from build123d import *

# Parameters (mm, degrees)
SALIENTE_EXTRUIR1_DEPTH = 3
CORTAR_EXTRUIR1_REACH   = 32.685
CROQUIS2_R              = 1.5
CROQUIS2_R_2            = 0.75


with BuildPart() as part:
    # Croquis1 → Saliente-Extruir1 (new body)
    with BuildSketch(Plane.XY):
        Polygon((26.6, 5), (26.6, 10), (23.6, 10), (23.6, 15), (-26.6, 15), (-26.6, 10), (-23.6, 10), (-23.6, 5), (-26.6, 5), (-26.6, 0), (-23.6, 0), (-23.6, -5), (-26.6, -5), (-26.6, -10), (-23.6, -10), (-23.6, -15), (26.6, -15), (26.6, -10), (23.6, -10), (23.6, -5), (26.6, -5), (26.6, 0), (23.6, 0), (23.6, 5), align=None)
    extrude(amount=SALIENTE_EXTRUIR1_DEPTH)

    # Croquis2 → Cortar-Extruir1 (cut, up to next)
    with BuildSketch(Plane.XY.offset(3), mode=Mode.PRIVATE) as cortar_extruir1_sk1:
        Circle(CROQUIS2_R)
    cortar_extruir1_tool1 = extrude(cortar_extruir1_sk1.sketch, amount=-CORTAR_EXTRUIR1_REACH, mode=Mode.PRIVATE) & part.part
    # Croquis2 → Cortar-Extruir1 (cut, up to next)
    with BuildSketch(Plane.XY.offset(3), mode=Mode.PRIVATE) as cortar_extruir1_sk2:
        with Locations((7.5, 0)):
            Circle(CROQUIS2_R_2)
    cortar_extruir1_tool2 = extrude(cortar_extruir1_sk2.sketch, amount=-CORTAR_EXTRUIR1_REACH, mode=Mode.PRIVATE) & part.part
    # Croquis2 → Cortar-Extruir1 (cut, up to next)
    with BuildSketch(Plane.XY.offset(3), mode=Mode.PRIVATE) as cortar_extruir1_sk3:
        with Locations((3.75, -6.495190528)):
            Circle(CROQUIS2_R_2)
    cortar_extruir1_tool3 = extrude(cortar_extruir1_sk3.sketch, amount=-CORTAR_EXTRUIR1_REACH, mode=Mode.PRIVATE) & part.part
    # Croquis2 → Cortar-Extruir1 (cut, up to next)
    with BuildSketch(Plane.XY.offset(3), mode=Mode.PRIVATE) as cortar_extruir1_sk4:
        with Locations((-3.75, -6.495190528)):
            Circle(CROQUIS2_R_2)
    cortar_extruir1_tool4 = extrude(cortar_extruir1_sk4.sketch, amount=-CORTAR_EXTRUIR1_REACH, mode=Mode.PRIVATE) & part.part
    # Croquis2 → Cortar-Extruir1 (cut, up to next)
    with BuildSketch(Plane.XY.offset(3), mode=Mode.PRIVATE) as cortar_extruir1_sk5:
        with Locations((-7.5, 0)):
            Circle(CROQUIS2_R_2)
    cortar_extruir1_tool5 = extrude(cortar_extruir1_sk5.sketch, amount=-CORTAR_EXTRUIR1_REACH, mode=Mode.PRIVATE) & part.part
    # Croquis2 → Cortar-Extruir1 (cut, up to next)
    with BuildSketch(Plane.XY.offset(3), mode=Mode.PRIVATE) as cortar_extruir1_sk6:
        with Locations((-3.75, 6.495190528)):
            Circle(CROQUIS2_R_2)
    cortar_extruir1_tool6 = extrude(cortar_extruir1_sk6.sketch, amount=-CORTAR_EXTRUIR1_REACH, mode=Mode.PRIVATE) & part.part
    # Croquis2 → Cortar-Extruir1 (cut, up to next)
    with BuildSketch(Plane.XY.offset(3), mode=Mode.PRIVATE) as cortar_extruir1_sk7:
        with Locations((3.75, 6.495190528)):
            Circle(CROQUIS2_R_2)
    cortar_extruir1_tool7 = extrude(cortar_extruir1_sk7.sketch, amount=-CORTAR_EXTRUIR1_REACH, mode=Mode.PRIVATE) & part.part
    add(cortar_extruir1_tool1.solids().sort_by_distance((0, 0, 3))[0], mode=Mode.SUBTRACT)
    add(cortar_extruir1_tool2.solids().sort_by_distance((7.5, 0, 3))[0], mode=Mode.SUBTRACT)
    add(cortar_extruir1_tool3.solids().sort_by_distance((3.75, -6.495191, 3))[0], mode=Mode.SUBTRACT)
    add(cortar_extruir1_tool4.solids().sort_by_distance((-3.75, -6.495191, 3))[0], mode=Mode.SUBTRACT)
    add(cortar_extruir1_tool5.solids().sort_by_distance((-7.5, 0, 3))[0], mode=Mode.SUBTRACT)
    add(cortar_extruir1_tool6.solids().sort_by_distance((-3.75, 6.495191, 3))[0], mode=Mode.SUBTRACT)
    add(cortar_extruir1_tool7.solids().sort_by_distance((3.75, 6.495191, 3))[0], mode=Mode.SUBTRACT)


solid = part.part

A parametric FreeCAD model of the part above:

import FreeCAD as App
import Part
import Sketcher

V = App.Vector

doc = App.newDocument("Part")
body = doc.addObject("PartDesign::Body", "Body")

# Sketch on XY plane
sketch1 = body.newObject("Sketcher::SketchObject", "Sketch")
sketch1.AttachmentSupport = (doc.getObject("XY_Plane"), [""])
sketch1.MapMode = "FlatFace"
sketch1.addGeometry([
    Part.LineSegment(V(26.6, 5, 0), V(26.6, 10, 0)),  # 0
    Part.LineSegment(V(26.6, 10, 0), V(23.6, 10, 0)),  # 1
    Part.LineSegment(V(23.6, 10, 0), V(23.6, 15, 0)),  # 2
    Part.LineSegment(V(23.6, 15, 0), V(-26.6, 15, 0)),  # 3
    Part.LineSegment(V(-26.6, 15, 0), V(-26.6, 10, 0)),  # 4
    Part.LineSegment(V(-26.6, 10, 0), V(-23.6, 10, 0)),  # 5
    Part.LineSegment(V(-23.6, 10, 0), V(-23.6, 5, 0)),  # 6
    Part.LineSegment(V(-23.6, 5, 0), V(-26.6, 5, 0)),  # 7
    Part.LineSegment(V(-26.6, 5, 0), V(-26.6, 0, 0)),  # 8
    Part.LineSegment(V(-26.6, 0, 0), V(-23.6, 0, 0)),  # 9
    Part.LineSegment(V(-23.6, 0, 0), V(-23.6, -5, 0)),  # 10
    Part.LineSegment(V(-23.6, -5, 0), V(-26.6, -5, 0)),  # 11
    Part.LineSegment(V(-26.6, -5, 0), V(-26.6, -10, 0)),  # 12
    Part.LineSegment(V(-26.6, -10, 0), V(-23.6, -10, 0)),  # 13
    Part.LineSegment(V(-23.6, -10, 0), V(-23.6, -15, 0)),  # 14
    Part.LineSegment(V(-23.6, -15, 0), V(26.6, -15, 0)),  # 15
    Part.LineSegment(V(26.6, -15, 0), V(26.6, -10, 0)),  # 16
    Part.LineSegment(V(26.6, -10, 0), V(23.6, -10, 0)),  # 17
    Part.LineSegment(V(23.6, -10, 0), V(23.6, -5, 0)),  # 18
    Part.LineSegment(V(23.6, -5, 0), V(26.6, -5, 0)),  # 19
    Part.LineSegment(V(26.6, -5, 0), V(26.6, 0, 0)),  # 20
    Part.LineSegment(V(26.6, 0, 0), V(23.6, 0, 0)),  # 21
    Part.LineSegment(V(23.6, 0, 0), V(23.6, 5, 0)),  # 22
    Part.LineSegment(V(23.6, 5, 0), V(26.6, 5, 0)),  # 23
], False)
sketch1.addConstraint([
    Sketcher.Constraint("Coincident", 0, 2, 1, 1),
    Sketcher.Constraint("Coincident", 1, 2, 2, 1),
    Sketcher.Constraint("Coincident", 2, 2, 3, 1),
    Sketcher.Constraint("Coincident", 3, 2, 4, 1),
    Sketcher.Constraint("Coincident", 4, 2, 5, 1),
    Sketcher.Constraint("Coincident", 5, 2, 6, 1),
    Sketcher.Constraint("Coincident", 6, 2, 7, 1),
    Sketcher.Constraint("Coincident", 7, 2, 8, 1),
    Sketcher.Constraint("Coincident", 8, 2, 9, 1),
    Sketcher.Constraint("Coincident", 9, 2, 10, 1),
    Sketcher.Constraint("Coincident", 10, 2, 11, 1),
    Sketcher.Constraint("Coincident", 11, 2, 12, 1),
    Sketcher.Constraint("Coincident", 12, 2, 13, 1),
    Sketcher.Constraint("Coincident", 13, 2, 14, 1),
    Sketcher.Constraint("Coincident", 14, 2, 15, 1),
    Sketcher.Constraint("Coincident", 15, 2, 16, 1),
    Sketcher.Constraint("Coincident", 16, 2, 17, 1),
    Sketcher.Constraint("Coincident", 17, 2, 18, 1),
    Sketcher.Constraint("Coincident", 18, 2, 19, 1),
    Sketcher.Constraint("Coincident", 19, 2, 20, 1),
    Sketcher.Constraint("Coincident", 20, 2, 21, 1),
    Sketcher.Constraint("Coincident", 21, 2, 22, 1),
    Sketcher.Constraint("Coincident", 22, 2, 23, 1),
    Sketcher.Constraint("Coincident", 23, 2, 0, 1),
    Sketcher.Constraint("Vertical", 0),
    Sketcher.Constraint("Horizontal", 1),
    Sketcher.Constraint("Vertical", 2),
    Sketcher.Constraint("Horizontal", 3),
    Sketcher.Constraint("Vertical", 4),
    Sketcher.Constraint("Horizontal", 5),
    Sketcher.Constraint("Vertical", 6),
    Sketcher.Constraint("Horizontal", 7),
    Sketcher.Constraint("Vertical", 8),
    Sketcher.Constraint("Horizontal", 9),
    Sketcher.Constraint("Vertical", 10),
    Sketcher.Constraint("Horizontal", 11),
    Sketcher.Constraint("Vertical", 12),
    Sketcher.Constraint("Horizontal", 13),
    Sketcher.Constraint("Vertical", 14),
    Sketcher.Constraint("Horizontal", 15),
    Sketcher.Constraint("Vertical", 16),
    Sketcher.Constraint("Horizontal", 17),
    Sketcher.Constraint("Vertical", 18),
    Sketcher.Constraint("Horizontal", 19),
    Sketcher.Constraint("Vertical", 20),
    Sketcher.Constraint("Horizontal", 21),
    Sketcher.Constraint("Vertical", 22),
    Sketcher.Constraint("Horizontal", 23),
    Sketcher.Constraint("Symmetric", 0, 2, 12, 2, -1, 1),
    Sketcher.Constraint("Symmetric", 2, 2, 14, 2, -1, 1),
    Sketcher.Constraint("Symmetric", 4, 2, 16, 2, -1, 1),
    Sketcher.Constraint("Symmetric", 6, 2, 18, 2, -1, 1),
    Sketcher.Constraint("Symmetric", 8, 2, 20, 2, -1, 1),
    Sketcher.Constraint("Symmetric", 10, 2, 22, 2, -1, 1),
    Sketcher.Constraint("Symmetric", 0, 2, 4, 2, -2),
    Sketcher.Constraint("Symmetric", 10, 2, 18, 2, -2),
    Sketcher.Constraint("PointOnObject", 8, 2, -1),
    Sketcher.Constraint("Vertical", 4, 2, 7, 2),
    Sketcher.Constraint("Vertical", 10, 2, 13, 2),
    Sketcher.Constraint("Equal", 0, 2),
    Sketcher.Constraint("Equal", 6, 8),
    Sketcher.Constraint("DistanceX", 1, 2, 1, 1, 3.0),
    Sketcher.Constraint("DistanceY", 0, 1, 0, 2, 5.0),
    Sketcher.Constraint("DistanceX", 3, 2, 3, 1, 50.2),
])
pad1 = body.newObject("PartDesign::Pad", "Pad")
pad1.Profile = sketch1
pad1.Length = 3

# Sketch on XY plane
sketch2 = body.newObject("Sketcher::SketchObject", "Sketch001")
sketch2.AttachmentSupport = (doc.getObject("XY_Plane"), [""])
sketch2.MapMode = "FlatFace"
sketch2.AttachmentOffset = App.Placement(V(0, 0, 3), App.Rotation())
sketch2.addGeometry(Part.Circle(V(0, 0, 0), V(0, 0, 1), 1.5), False)
sketch2.addConstraint([
    Sketcher.Constraint("Coincident", 0, 3, -1, 1),
    Sketcher.Constraint("Diameter", 0, 3.0),
])
pocket1 = body.newObject("PartDesign::Pocket", "Pocket")
pocket1.Profile = sketch2
pocket1.Type = "UpToFirst"

# Sketch on XY plane
sketch3 = body.newObject("Sketcher::SketchObject", "Sketch002")
sketch3.AttachmentSupport = (doc.getObject("XY_Plane"), [""])
sketch3.MapMode = "FlatFace"
sketch3.AttachmentOffset = App.Placement(V(0, 0, 3), App.Rotation())
sketch3.addGeometry(Part.Circle(V(7.5, 0, 0), V(0, 0, 1), 0.75), False)
sketch3.addConstraint([
    Sketcher.Constraint("PointOnObject", 0, 3, -1),
    Sketcher.Constraint("Diameter", 0, 1.5),
    Sketcher.Constraint("DistanceX", -1, 1, 0, 3, 7.5),
])
pocket2 = body.newObject("PartDesign::Pocket", "Pocket001")
pocket2.Profile = sketch3
pocket2.Type = "UpToFirst"

# Sketch on XY plane
sketch4 = body.newObject("Sketcher::SketchObject", "Sketch003")
sketch4.AttachmentSupport = (doc.getObject("XY_Plane"), [""])
sketch4.MapMode = "FlatFace"
sketch4.AttachmentOffset = App.Placement(V(0, 0, 3), App.Rotation())
sketch4.addGeometry(Part.Circle(V(3.75, -6.495191, 0), V(0, 0, 1), 0.75), False)
sketch4.addConstraint([
    Sketcher.Constraint("Diameter", 0, 1.5),
    Sketcher.Constraint("DistanceX", -1, 1, 0, 3, 3.75),
    Sketcher.Constraint("DistanceY", 0, 3, -1, 1, 6.495191),
])
pocket3 = body.newObject("PartDesign::Pocket", "Pocket002")
pocket3.Profile = sketch4
pocket3.Type = "UpToFirst"

# Sketch on XY plane
sketch5 = body.newObject("Sketcher::SketchObject", "Sketch004")
sketch5.AttachmentSupport = (doc.getObject("XY_Plane"), [""])
sketch5.MapMode = "FlatFace"
sketch5.AttachmentOffset = App.Placement(V(0, 0, 3), App.Rotation())
sketch5.addGeometry(Part.Circle(V(-3.75, -6.495191, 0), V(0, 0, 1), 0.75), False)
sketch5.addConstraint([
    Sketcher.Constraint("Diameter", 0, 1.5),
    Sketcher.Constraint("DistanceX", 0, 3, -1, 1, 3.75),
    Sketcher.Constraint("DistanceY", 0, 3, -1, 1, 6.495191),
])
pocket4 = body.newObject("PartDesign::Pocket", "Pocket003")
pocket4.Profile = sketch5
pocket4.Type = "UpToFirst"

# Sketch on XY plane
sketch6 = body.newObject("Sketcher::SketchObject", "Sketch005")
sketch6.AttachmentSupport = (doc.getObject("XY_Plane"), [""])
sketch6.MapMode = "FlatFace"
sketch6.AttachmentOffset = App.Placement(V(0, 0, 3), App.Rotation())
sketch6.addGeometry(Part.Circle(V(-7.5, 0, 0), V(0, 0, 1), 0.75), False)
sketch6.addConstraint([
    Sketcher.Constraint("PointOnObject", 0, 3, -1),
    Sketcher.Constraint("Diameter", 0, 1.5),
    Sketcher.Constraint("DistanceX", 0, 3, -1, 1, 7.5),
])
pocket5 = body.newObject("PartDesign::Pocket", "Pocket004")
pocket5.Profile = sketch6
pocket5.Type = "UpToFirst"

# Sketch on XY plane
sketch7 = body.newObject("Sketcher::SketchObject", "Sketch006")
sketch7.AttachmentSupport = (doc.getObject("XY_Plane"), [""])
sketch7.MapMode = "FlatFace"
sketch7.AttachmentOffset = App.Placement(V(0, 0, 3), App.Rotation())
sketch7.addGeometry(Part.Circle(V(-3.75, 6.495191, 0), V(0, 0, 1), 0.75), False)
sketch7.addConstraint([
    Sketcher.Constraint("Diameter", 0, 1.5),
    Sketcher.Constraint("DistanceX", 0, 3, -1, 1, 3.75),
    Sketcher.Constraint("DistanceY", -1, 1, 0, 3, 6.495191),
])
pocket6 = body.newObject("PartDesign::Pocket", "Pocket005")
pocket6.Profile = sketch7
pocket6.Type = "UpToFirst"

# Sketch on XY plane
sketch8 = body.newObject("Sketcher::SketchObject", "Sketch007")
sketch8.AttachmentSupport = (doc.getObject("XY_Plane"), [""])
sketch8.MapMode = "FlatFace"
sketch8.AttachmentOffset = App.Placement(V(0, 0, 3), App.Rotation())
sketch8.addGeometry(Part.Circle(V(3.75, 6.495191, 0), V(0, 0, 1), 0.75), False)
sketch8.addConstraint([
    Sketcher.Constraint("Diameter", 0, 1.5),
    Sketcher.Constraint("DistanceX", -1, 1, 0, 3, 3.75),
    Sketcher.Constraint("DistanceY", -1, 1, 0, 3, 6.495191),
])
pocket7 = body.newObject("PartDesign::Pocket", "Pocket006")
pocket7.Profile = sketch8
pocket7.Type = "UpToFirst"

doc.recompute()
